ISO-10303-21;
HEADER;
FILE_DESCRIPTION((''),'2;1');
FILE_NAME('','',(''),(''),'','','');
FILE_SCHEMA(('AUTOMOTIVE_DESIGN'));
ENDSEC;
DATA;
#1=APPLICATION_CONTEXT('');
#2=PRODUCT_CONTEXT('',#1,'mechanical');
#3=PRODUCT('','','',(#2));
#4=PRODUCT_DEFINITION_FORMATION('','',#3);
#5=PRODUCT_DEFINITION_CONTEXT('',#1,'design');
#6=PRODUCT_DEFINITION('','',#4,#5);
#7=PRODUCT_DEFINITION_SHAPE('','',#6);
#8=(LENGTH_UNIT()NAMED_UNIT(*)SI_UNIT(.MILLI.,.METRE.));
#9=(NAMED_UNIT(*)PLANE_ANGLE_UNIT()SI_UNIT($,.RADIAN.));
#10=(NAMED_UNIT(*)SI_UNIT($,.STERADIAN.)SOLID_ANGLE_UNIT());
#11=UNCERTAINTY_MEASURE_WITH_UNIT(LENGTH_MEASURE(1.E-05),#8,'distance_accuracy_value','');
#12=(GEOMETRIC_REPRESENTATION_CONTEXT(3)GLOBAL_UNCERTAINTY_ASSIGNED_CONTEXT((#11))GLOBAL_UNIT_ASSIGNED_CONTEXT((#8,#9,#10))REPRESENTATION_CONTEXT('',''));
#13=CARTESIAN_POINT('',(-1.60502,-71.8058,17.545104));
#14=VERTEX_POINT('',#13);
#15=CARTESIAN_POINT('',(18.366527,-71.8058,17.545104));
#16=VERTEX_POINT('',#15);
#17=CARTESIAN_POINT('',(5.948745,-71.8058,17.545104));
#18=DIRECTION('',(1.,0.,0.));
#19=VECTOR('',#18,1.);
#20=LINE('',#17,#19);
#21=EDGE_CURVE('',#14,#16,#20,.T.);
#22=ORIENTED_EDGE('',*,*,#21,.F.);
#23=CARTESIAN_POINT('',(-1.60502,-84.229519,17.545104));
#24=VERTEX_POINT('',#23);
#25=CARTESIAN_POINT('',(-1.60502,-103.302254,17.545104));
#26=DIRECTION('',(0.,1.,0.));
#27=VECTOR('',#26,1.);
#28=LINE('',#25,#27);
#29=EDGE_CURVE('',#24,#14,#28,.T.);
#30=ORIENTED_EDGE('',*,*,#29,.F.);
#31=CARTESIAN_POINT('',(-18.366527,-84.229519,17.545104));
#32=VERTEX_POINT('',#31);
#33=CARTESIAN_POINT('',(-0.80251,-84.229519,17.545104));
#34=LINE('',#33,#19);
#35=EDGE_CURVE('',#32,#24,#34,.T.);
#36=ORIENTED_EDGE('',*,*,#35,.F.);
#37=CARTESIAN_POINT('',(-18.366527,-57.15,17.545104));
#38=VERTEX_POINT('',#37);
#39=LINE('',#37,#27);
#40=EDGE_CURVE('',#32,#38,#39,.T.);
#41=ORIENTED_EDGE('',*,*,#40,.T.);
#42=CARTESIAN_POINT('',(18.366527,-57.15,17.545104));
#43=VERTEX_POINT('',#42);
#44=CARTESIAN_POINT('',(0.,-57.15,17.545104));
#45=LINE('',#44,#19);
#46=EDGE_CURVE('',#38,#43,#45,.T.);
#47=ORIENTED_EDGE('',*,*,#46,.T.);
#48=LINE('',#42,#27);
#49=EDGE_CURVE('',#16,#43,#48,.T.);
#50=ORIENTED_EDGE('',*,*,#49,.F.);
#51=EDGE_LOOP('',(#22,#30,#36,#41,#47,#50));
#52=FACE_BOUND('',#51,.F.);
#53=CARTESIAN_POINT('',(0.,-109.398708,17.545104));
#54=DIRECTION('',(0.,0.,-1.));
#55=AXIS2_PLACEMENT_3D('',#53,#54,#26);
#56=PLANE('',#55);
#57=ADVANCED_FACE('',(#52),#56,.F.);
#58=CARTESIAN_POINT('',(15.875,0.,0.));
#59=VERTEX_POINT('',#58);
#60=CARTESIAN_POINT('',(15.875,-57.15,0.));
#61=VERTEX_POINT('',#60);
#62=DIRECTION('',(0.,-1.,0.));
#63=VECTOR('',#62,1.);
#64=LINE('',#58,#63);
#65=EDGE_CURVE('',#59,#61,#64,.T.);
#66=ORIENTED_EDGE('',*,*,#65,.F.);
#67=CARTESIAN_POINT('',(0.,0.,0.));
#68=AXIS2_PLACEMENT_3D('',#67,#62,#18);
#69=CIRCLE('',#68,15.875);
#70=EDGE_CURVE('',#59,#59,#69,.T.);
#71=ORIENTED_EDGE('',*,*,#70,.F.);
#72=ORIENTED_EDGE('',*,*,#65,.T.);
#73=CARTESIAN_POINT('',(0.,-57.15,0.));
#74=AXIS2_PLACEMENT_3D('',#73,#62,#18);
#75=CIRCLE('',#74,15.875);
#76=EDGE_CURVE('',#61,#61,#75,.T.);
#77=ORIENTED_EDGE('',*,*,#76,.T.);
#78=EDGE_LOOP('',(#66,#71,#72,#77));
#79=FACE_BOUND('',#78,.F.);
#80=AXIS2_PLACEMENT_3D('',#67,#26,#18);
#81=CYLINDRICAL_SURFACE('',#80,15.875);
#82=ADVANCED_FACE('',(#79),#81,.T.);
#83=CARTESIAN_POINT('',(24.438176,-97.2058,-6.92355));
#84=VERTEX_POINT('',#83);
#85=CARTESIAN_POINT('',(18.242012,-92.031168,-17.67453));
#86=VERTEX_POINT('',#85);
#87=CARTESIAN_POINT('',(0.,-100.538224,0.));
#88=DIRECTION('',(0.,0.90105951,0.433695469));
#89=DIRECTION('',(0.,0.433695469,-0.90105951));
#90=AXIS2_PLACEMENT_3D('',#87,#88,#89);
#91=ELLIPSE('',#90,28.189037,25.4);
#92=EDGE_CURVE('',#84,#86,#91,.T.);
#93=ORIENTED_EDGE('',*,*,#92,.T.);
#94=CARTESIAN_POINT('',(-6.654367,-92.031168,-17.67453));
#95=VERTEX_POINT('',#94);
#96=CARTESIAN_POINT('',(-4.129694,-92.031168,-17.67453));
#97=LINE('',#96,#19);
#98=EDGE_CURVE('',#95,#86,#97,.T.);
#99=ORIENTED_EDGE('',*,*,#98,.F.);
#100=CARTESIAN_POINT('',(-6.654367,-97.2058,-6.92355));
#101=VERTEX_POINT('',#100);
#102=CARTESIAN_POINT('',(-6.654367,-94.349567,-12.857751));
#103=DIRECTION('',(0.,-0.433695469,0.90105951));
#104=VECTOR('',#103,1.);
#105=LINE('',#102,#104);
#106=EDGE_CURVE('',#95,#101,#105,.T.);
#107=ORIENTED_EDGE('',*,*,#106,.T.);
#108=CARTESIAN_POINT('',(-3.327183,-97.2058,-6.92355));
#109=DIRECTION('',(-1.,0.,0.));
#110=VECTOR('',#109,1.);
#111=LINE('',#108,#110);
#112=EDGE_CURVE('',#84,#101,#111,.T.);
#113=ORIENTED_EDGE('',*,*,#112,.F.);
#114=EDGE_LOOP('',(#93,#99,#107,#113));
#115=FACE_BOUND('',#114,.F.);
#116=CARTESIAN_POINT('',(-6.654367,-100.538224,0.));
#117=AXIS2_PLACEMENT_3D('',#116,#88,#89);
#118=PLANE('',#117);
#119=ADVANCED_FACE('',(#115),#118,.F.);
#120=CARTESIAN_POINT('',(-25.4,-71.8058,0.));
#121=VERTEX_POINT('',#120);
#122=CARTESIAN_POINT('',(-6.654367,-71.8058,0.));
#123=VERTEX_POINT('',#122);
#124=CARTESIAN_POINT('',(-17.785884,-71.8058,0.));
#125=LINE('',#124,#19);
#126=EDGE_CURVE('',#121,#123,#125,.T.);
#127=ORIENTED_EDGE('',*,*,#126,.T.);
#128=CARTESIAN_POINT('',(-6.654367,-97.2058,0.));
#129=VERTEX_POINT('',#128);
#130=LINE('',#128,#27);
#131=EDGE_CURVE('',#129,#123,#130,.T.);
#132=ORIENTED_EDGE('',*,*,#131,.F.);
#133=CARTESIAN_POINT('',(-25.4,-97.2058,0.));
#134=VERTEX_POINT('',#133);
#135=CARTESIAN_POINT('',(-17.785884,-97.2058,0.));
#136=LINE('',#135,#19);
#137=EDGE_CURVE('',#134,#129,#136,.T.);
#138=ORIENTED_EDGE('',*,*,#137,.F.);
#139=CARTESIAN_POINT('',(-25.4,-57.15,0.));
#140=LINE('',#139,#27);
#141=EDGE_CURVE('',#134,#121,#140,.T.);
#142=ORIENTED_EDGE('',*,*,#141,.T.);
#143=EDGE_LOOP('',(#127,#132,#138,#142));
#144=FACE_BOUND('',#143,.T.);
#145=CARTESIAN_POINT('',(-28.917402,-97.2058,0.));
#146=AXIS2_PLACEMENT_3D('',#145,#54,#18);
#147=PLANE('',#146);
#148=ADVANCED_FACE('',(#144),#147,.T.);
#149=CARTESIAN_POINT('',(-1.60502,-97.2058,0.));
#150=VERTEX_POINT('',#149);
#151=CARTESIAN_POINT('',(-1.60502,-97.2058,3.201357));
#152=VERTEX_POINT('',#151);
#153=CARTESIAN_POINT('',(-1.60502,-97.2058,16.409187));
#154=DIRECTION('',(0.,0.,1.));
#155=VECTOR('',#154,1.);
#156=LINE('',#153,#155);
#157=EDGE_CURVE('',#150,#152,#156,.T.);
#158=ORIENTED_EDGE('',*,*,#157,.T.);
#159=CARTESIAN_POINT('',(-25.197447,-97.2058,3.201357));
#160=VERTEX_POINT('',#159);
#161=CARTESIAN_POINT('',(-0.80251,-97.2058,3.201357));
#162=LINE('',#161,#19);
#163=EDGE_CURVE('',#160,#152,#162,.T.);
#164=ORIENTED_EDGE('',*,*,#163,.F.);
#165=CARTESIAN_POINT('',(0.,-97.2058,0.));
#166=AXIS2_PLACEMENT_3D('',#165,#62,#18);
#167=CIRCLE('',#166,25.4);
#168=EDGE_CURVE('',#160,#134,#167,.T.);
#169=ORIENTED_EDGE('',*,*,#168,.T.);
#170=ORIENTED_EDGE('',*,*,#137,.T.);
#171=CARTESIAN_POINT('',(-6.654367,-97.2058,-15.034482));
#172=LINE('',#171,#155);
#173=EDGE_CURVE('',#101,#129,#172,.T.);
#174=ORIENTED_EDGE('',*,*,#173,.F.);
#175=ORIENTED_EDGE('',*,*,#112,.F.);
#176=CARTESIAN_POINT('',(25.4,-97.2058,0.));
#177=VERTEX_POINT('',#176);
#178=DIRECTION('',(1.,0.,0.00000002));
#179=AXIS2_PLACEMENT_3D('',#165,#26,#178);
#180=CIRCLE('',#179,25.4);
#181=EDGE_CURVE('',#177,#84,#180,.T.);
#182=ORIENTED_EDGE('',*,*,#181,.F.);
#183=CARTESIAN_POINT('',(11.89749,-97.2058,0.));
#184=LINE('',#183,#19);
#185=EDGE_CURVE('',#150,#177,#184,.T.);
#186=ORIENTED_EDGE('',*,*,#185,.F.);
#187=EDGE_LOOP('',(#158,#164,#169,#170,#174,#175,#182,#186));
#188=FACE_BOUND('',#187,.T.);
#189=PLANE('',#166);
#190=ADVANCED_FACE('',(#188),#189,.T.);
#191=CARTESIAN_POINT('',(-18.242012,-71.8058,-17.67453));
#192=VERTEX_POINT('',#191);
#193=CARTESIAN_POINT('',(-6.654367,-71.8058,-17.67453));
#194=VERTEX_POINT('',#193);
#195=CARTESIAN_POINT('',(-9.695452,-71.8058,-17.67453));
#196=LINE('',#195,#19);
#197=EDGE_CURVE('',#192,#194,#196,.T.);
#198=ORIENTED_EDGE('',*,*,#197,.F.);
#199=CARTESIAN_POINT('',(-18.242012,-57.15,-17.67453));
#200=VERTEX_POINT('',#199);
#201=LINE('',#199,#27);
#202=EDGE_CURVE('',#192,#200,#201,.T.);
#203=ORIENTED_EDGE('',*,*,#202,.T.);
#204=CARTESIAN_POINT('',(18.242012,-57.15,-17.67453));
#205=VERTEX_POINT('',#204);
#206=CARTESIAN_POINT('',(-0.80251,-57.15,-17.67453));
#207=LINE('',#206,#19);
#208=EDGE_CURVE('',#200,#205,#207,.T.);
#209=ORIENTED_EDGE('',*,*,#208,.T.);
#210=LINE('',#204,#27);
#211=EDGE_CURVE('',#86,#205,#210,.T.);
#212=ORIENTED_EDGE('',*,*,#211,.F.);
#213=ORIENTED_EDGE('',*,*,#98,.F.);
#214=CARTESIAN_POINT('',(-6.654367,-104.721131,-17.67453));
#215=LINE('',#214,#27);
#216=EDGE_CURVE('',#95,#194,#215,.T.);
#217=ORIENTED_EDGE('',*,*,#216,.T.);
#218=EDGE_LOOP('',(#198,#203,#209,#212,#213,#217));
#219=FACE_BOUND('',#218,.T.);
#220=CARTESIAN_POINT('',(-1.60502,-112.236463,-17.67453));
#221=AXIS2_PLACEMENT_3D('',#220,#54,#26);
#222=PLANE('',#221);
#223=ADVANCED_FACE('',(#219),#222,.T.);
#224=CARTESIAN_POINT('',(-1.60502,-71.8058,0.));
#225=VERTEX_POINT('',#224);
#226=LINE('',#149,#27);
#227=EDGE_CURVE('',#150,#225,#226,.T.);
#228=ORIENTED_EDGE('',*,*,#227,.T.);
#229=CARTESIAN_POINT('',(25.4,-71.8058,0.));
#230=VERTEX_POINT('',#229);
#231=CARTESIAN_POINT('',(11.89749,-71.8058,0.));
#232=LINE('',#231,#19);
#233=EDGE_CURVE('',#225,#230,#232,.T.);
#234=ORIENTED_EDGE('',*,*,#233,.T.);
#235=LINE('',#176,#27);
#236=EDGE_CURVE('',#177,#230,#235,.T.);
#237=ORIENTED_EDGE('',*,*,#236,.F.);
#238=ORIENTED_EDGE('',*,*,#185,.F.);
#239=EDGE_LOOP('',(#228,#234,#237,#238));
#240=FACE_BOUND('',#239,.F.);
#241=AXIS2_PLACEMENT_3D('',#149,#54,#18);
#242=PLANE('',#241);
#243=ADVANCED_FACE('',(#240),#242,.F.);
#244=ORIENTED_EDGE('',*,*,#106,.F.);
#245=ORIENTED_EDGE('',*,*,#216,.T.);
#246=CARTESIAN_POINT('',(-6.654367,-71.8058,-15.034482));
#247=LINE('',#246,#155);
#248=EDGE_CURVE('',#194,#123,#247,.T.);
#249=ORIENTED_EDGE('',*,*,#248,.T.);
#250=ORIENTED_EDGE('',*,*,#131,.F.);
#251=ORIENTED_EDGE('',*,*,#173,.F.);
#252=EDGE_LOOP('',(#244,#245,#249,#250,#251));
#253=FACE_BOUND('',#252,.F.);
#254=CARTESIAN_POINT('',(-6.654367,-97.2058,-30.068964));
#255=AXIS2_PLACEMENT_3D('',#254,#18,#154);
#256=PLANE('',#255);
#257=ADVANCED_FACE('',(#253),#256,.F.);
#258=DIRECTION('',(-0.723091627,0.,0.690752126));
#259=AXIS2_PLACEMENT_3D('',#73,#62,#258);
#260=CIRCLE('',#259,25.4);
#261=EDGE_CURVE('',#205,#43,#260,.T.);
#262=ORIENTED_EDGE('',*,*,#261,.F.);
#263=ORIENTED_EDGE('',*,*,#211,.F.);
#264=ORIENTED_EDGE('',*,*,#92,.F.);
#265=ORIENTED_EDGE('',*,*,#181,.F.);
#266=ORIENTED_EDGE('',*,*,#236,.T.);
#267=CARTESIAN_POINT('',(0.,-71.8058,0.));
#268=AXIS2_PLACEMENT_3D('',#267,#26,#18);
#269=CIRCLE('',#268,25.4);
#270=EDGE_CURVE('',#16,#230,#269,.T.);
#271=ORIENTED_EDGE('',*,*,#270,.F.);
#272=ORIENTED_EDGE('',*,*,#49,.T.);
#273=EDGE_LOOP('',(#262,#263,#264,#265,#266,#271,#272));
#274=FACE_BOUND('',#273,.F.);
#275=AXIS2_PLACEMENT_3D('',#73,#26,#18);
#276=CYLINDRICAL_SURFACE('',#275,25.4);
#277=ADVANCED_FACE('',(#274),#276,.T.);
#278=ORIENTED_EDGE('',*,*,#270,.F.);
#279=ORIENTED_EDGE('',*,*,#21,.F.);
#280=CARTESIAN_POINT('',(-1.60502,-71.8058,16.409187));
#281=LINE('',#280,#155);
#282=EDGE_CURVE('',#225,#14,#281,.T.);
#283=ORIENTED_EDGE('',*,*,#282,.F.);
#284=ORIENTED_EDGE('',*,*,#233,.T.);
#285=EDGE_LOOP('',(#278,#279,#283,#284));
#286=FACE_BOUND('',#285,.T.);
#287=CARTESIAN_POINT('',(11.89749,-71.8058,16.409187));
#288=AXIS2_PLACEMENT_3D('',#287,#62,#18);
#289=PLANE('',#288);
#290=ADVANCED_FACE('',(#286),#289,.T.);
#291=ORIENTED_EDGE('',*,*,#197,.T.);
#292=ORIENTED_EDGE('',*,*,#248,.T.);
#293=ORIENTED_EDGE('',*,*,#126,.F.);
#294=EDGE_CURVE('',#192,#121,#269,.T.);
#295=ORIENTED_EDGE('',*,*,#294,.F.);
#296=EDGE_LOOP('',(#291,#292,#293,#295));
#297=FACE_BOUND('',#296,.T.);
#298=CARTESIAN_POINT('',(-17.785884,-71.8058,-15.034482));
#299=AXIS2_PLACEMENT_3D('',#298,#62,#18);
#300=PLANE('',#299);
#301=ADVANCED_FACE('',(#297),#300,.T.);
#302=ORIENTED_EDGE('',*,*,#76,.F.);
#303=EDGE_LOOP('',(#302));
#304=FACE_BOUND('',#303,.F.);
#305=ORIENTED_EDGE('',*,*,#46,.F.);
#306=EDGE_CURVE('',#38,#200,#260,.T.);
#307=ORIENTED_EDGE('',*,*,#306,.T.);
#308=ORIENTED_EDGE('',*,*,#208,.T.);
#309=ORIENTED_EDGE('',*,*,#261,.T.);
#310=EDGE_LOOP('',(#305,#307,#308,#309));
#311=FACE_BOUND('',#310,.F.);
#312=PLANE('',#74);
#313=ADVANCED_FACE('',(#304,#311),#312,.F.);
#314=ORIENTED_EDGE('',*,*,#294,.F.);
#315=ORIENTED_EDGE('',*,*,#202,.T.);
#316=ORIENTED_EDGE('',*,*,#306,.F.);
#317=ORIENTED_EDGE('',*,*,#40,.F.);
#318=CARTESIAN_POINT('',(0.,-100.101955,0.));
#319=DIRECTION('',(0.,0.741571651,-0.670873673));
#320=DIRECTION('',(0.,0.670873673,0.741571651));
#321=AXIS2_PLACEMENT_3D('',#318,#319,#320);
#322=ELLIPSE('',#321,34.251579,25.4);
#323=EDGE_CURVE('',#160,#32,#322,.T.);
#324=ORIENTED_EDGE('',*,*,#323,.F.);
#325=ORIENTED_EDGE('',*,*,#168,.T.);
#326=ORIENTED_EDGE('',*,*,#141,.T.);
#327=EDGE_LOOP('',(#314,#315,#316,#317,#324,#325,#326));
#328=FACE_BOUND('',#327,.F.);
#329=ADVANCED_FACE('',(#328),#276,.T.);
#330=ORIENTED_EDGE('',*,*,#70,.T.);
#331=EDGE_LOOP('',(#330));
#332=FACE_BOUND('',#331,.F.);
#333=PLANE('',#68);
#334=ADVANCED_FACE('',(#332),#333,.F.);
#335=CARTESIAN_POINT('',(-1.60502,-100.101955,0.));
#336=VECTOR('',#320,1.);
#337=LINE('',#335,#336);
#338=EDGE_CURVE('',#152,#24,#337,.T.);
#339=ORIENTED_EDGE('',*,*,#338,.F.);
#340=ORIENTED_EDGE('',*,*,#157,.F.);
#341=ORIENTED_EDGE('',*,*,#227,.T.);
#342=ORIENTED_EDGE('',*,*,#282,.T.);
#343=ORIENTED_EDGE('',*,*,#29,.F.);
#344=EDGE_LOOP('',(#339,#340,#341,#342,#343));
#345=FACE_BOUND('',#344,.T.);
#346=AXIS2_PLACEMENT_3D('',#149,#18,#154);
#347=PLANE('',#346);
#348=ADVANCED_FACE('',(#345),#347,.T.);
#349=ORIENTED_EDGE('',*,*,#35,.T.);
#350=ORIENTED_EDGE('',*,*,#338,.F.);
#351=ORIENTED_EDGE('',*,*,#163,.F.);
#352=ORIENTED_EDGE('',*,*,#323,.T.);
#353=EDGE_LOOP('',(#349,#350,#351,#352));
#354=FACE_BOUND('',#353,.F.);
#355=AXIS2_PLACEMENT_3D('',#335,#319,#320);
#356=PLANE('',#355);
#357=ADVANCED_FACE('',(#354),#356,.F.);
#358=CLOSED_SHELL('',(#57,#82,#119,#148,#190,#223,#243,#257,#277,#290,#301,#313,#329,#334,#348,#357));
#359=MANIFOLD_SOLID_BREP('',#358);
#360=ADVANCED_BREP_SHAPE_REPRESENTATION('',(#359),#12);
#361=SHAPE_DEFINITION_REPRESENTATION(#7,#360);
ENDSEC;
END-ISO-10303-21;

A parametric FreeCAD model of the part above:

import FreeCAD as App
import Part
import Sketcher

V = App.Vector
Q = App.Units.Quantity

doc = App.newDocument("Part")
body = doc.addObject("PartDesign::Body", "Body")

# Sketch on XZ plane
sketch1 = doc.addObject("Sketcher::SketchObject", "Sketch")
body.addObject(sketch1)
sketch1.AttachmentSupport = (doc.XZ_Plane, [""])
sketch1.MapMode = "FlatFace"
sketch1.addGeometry(Part.Circle(V(0, 0, 0), V(0, 0, 1), 15.875), False)
sketch1.addConstraint([
    Sketcher.Constraint("Coincident", 0, 3, -1, 1),
    Sketcher.Constraint("Diameter", 0, Q("1.25 in")),
])
pad1 = doc.addObject("PartDesign::Pad", "Pad")
body.addObject(pad1)
pad1.Profile = sketch1
pad1.Length = Q("2.25 in")

# Sketch on XZ plane
sketch2 = doc.addObject("Sketcher::SketchObject", "Sketch001")
body.addObject(sketch2)
sketch2.AttachmentSupport = (doc.XZ_Plane, [""])
sketch2.MapMode = "FlatFace"
sketch2.AttachmentOffset = App.Placement(V(0, 0, 2.25 * 25.4), App.Rotation())
sketch2.addGeometry(Part.Circle(V(0, 0, 0), V(0, 0, 1), 25.4), False)
sketch2.addConstraint([
    Sketcher.Constraint("Coincident", 0, 3, -1, 1),
    Sketcher.Constraint("Diameter", 0, Q("2 in")),
])
pad2 = doc.addObject("PartDesign::Pad", "Pad001")
body.addObject(pad2)
pad2.Profile = sketch2
pad2.Length = Q("1.577 in")

# Sketch on XZ plane
sketch3 = doc.addObject("Sketcher::SketchObject", "Sketch002")
body.addObject(sketch3)
sketch3.AttachmentSupport = (doc.XZ_Plane, [""])
sketch3.MapMode = "FlatFace"
sketch3.AttachmentOffset = App.Placement(V(0, 0, 3.827 * 25.4), App.Rotation())
sketch3.addGeometry([
    Part.LineSegment(V(-1.60502, 32.818373, 0), V(-1.60502, 0, 0)),
    Part.LineSegment(V(-1.60502, 0, 0), V(25.4, 0, 0)),
    Part.LineSegment(V(25.4, 0, 0), V(25.4, 32.818373, 0)),
    Part.LineSegment(V(25.4, 32.818373, 0), V(-1.60502, 32.818373, 0)),
], False)
sketch3.addConstraint([
    Sketcher.Constraint("Coincident", 0, 2, 1, 1),
    Sketcher.Constraint("Coincident", 1, 2, 2, 1),
    Sketcher.Constraint("Coincident", 2, 2, 3, 1),
    Sketcher.Constraint("Coincident", 3, 2, 0, 1),
    Sketcher.Constraint("Vertical", 0),
    Sketcher.Constraint("Horizontal", 1),
    Sketcher.Constraint("Vertical", 2),
    Sketcher.Constraint("Horizontal", 3),
    Sketcher.Constraint("PointOnObject", 0, 2, -1),
    Sketcher.Constraint("DistanceX", -1, 1, 1, 2, Q("1 in")),
    Sketcher.Constraint("DistanceX", 1, 1, 1, 2, 27.00502),
    Sketcher.Constraint("DistanceY", 0, 2, 0, 1, 32.818373),
])
pocket1 = doc.addObject("PartDesign::Pocket", "Pocket")
body.addObject(pocket1)
pocket1.Profile = sketch3
pocket1.Length = Q("1 in")

# Sketch on XZ plane
sketch4 = doc.addObject("Sketcher::SketchObject", "Sketch003")
body.addObject(sketch4)
sketch4.AttachmentSupport = (doc.XZ_Plane, [""])
sketch4.MapMode = "FlatFace"
sketch4.AttachmentOffset = App.Placement(V(0, 0, 3.827 * 25.4), App.Rotation())
sketch4.addGeometry([
    Part.LineSegment(V(-28.917402, 0, 0), V(-28.917402, -30.068964, 0)),
    Part.LineSegment(V(-28.917402, -30.068964, 0), V(-6.654367, -30.068964, 0)),
    Part.LineSegment(V(-6.654367, -30.068964, 0), V(-6.654367, 0, 0)),
    Part.LineSegment(V(-6.654367, 0, 0), V(-28.917402, 0, 0)),
], False)
sketch4.addConstraint([
    Sketcher.Constraint("Coincident", 0, 2, 1, 1),
    Sketcher.Constraint("Coincident", 1, 2, 2, 1),
    Sketcher.Constraint("Coincident", 2, 2, 3, 1),
    Sketcher.Constraint("Coincident", 3, 2, 0, 1),
    Sketcher.Constraint("Vertical", 0),
    Sketcher.Constraint("Horizontal", 1),
    Sketcher.Constraint("Vertical", 2),
    Sketcher.Constraint("Horizontal", 3),
    Sketcher.Constraint("PointOnObject", 2, 2, -1),
    Sketcher.Constraint("DistanceX", 0, 2, -1, 1, 28.917402),
    Sketcher.Constraint("DistanceX", 1, 1, 1, 2, 22.263035),
    Sketcher.Constraint("DistanceY", 0, 2, 0, 1, 30.068964),
])
pocket2 = doc.addObject("PartDesign::Pocket", "Pocket001")
body.addObject(pocket2)
pocket2.Profile = sketch4
pocket2.Length = Q("1 in")

# Sketch on YZ plane
sketch5 = doc.addObject("Sketcher::SketchObject", "Sketch004")
body.addObject(sketch5)
sketch5.AttachmentSupport = (doc.YZ_Plane, [""])
sketch5.MapMode = "FlatFace"
sketch5.addGeometry([
    Part.LineSegment(V(-109.398708, 32.059588, 0), V(-109.398708, 17.545104, 0)),
    Part.LineSegment(V(-109.398708, 17.545104, 0), V(-55.89009, 17.545104, 0)),
    Part.LineSegment(V(-55.89009, 17.545104, 0), V(-55.89009, 32.059588, 0)),
    Part.LineSegment(V(-55.89009, 32.059588, 0), V(-109.398708, 32.059588, 0)),
], False)
sketch5.addConstraint([
    Sketcher.Constraint("Coincident", 0, 2, 1, 1),
    Sketcher.Constraint("Coincident", 1, 2, 2, 1),
    Sketcher.Constraint("Coincident", 2, 2, 3, 1),
    Sketcher.Constraint("Coincident", 3, 2, 0, 1),
    Sketcher.Constraint("Vertical", 0),
    Sketcher.Constraint("Horizontal", 1),
    Sketcher.Constraint("Vertical", 2),
    Sketcher.Constraint("Horizontal", 3),
    Sketcher.Constraint("DistanceX", 1, 1, 1, 2, 53.508617),
    Sketcher.Constraint("DistanceY", 0, 2, 0, 1, 14.514484),
    Sketcher.Constraint("DistanceX", 1, 2, -1, 1, 55.89009),
    Sketcher.Constraint("DistanceY", -1, 1, 0, 2, 17.545104),
])
pocket3 = doc.addObject("PartDesign::Pocket", "Pocket002")
body.addObject(pocket3)
pocket3.Profile = sketch5
pocket3.Length = Q("3 in")
pocket3.Midplane = True

# Sketch on YZ plane
sketch6 = doc.addObject("Sketcher::SketchObject", "Sketch005")
body.addObject(sketch6)
sketch6.AttachmentSupport = (doc.YZ_Plane, [""])
sketch6.MapMode = "FlatFace"
sketch6.AttachmentOffset = App.Placement(V(0, 0, -1.60502), App.Rotation())
sketch6.addGeometry([
    Part.LineSegment(V(-104.001366, 21.551706, 0), V(-100.101955, 0, 0)),
    Part.LineSegment(V(-100.101955, 0, 0), V(-80.604888, 21.551706, 0)),
    Part.LineSegment(V(-80.604888, 21.551706, 0), V(-104.001366, 21.551706, 0)),
], False)
sketch6.addConstraint([
    Sketcher.Constraint("Coincident", 0, 2, 1, 1),
    Sketcher.Constraint("Coincident", 1, 2, 2, 1),
    Sketcher.Constraint("Coincident", 2, 2, 0, 1),
    Sketcher.Constraint("Horizontal", 2),
    Sketcher.Constraint("PointOnObject", 0, 2, -1),
    Sketcher.Constraint("DistanceX", 2, 2, 2, 1, 23.396478),
    Sketcher.Constraint("Distance", 0, 21.901631),
    Sketcher.Constraint("DistanceX", 1, 2, -1, 1, 80.604888),
    Sketcher.Constraint("DistanceX", 2, 2, 0, 2, 3.899411),
])
pocket4 = doc.addObject("PartDesign::Pocket", "Pocket003")
body.addObject(pocket4)
pocket4.Profile = sketch6
pocket4.Length = Q("1 in")

# Sketch on YZ plane
sketch7 = doc.addObject("Sketcher::SketchObject", "Sketch006")
body.addObject(sketch7)
sketch7.AttachmentSupport = (doc.YZ_Plane, [""])
sketch7.MapMode = "FlatFace"
sketch7.AttachmentOffset = App.Placement(V(0, 0, -1.60502), App.Rotation())
sketch7.addGeometry([
    Part.LineSegment(V(-112.236463, -17.67453, 0), V(-112.236463, -33.488818, 0)),
    Part.LineSegment(V(-112.236463, -33.488818, 0), V(-54.395162, -33.488818, 0)),
    Part.LineSegment(V(-54.395162, -33.488818, 0), V(-54.395162, -17.67453, 0)),
    Part.LineSegment(V(-54.395162, -17.67453, 0), V(-112.236463, -17.67453, 0)),
], False)
sketch7.addConstraint([
    Sketcher.Constraint("Coincident", 0, 2, 1, 1),
    Sketcher.Constraint("Coincident", 1, 2, 2, 1),
    Sketcher.Constraint("Coincident", 2, 2, 3, 1),
    Sketcher.Constraint("Coincident", 3, 2, 0, 1),
    Sketcher.Constraint("Vertical", 0),
    Sketcher.Constraint("Horizontal", 1),
    Sketcher.Constraint("Vertical", 2),
    Sketcher.Constraint("Horizontal", 3),
    Sketcher.Constraint("DistanceX", 1, 1, 1, 2, 57.841301),
    Sketcher.Constraint("DistanceY", 0, 2, 0, 1, 15.814288),
    Sketcher.Constraint("DistanceY", 0, 2, -1, 1, 33.488818),
    Sketcher.Constraint("DistanceX", 1, 2, -1, 1, 54.395162),
])
pocket5 = doc.addObject("PartDesign::Pocket", "Pocket004")
body.addObject(pocket5)
pocket5.Profile = sketch7
pocket5.Length = Q("3 in")
pocket5.Midplane = True

# Sketch on YZ plane
sketch8 = doc.addObject("Sketcher::SketchObject", "Sketch007")
body.addObject(sketch8)
sketch8.AttachmentSupport = (doc.YZ_Plane, [""])
sketch8.MapMode = "FlatFace"
sketch8.AttachmentOffset = App.Placement(V(0, 0, -6.654367), App.Rotation())
sketch8.addGeometry([
    Part.LineSegment(V(-101.621397, -22.054199, 0), V(-100.538224, 0, 0)),
    Part.LineSegment(V(-100.538224, 0, 0), V(-89.923158, -22.054199, 0)),
    Part.LineSegment(V(-89.923158, -22.054199, 0), V(-101.621397, -22.054199, 0)),
], False)
sketch8.addConstraint([
    Sketcher.Constraint("Coincident", 0, 2, 1, 1),
    Sketcher.Constraint("Coincident", 1, 2, 2, 1),
    Sketcher.Constraint("Coincident", 2, 2, 0, 1),
    Sketcher.Constraint("Horizontal", 2),
    Sketcher.Constraint("PointOnObject", 0, 2, -1),
    Sketcher.Constraint("DistanceX", 2, 2, 2, 1, 11.698239),
    Sketcher.Constraint("DistanceY", 1, 2, -1, 1, 22.054199),
    Sketcher.Constraint("Distance", 1, 24.475852),
    Sketcher.Constraint("DistanceX", 1, 2, -1, 1, 89.923158),
])
pocket6 = doc.addObject("PartDesign::Pocket", "Pocket005")
body.addObject(pocket6)
pocket6.Profile = sketch8
pocket6.Length = Q("2 in")
pocket6.Reversed = True

doc.recompute()
